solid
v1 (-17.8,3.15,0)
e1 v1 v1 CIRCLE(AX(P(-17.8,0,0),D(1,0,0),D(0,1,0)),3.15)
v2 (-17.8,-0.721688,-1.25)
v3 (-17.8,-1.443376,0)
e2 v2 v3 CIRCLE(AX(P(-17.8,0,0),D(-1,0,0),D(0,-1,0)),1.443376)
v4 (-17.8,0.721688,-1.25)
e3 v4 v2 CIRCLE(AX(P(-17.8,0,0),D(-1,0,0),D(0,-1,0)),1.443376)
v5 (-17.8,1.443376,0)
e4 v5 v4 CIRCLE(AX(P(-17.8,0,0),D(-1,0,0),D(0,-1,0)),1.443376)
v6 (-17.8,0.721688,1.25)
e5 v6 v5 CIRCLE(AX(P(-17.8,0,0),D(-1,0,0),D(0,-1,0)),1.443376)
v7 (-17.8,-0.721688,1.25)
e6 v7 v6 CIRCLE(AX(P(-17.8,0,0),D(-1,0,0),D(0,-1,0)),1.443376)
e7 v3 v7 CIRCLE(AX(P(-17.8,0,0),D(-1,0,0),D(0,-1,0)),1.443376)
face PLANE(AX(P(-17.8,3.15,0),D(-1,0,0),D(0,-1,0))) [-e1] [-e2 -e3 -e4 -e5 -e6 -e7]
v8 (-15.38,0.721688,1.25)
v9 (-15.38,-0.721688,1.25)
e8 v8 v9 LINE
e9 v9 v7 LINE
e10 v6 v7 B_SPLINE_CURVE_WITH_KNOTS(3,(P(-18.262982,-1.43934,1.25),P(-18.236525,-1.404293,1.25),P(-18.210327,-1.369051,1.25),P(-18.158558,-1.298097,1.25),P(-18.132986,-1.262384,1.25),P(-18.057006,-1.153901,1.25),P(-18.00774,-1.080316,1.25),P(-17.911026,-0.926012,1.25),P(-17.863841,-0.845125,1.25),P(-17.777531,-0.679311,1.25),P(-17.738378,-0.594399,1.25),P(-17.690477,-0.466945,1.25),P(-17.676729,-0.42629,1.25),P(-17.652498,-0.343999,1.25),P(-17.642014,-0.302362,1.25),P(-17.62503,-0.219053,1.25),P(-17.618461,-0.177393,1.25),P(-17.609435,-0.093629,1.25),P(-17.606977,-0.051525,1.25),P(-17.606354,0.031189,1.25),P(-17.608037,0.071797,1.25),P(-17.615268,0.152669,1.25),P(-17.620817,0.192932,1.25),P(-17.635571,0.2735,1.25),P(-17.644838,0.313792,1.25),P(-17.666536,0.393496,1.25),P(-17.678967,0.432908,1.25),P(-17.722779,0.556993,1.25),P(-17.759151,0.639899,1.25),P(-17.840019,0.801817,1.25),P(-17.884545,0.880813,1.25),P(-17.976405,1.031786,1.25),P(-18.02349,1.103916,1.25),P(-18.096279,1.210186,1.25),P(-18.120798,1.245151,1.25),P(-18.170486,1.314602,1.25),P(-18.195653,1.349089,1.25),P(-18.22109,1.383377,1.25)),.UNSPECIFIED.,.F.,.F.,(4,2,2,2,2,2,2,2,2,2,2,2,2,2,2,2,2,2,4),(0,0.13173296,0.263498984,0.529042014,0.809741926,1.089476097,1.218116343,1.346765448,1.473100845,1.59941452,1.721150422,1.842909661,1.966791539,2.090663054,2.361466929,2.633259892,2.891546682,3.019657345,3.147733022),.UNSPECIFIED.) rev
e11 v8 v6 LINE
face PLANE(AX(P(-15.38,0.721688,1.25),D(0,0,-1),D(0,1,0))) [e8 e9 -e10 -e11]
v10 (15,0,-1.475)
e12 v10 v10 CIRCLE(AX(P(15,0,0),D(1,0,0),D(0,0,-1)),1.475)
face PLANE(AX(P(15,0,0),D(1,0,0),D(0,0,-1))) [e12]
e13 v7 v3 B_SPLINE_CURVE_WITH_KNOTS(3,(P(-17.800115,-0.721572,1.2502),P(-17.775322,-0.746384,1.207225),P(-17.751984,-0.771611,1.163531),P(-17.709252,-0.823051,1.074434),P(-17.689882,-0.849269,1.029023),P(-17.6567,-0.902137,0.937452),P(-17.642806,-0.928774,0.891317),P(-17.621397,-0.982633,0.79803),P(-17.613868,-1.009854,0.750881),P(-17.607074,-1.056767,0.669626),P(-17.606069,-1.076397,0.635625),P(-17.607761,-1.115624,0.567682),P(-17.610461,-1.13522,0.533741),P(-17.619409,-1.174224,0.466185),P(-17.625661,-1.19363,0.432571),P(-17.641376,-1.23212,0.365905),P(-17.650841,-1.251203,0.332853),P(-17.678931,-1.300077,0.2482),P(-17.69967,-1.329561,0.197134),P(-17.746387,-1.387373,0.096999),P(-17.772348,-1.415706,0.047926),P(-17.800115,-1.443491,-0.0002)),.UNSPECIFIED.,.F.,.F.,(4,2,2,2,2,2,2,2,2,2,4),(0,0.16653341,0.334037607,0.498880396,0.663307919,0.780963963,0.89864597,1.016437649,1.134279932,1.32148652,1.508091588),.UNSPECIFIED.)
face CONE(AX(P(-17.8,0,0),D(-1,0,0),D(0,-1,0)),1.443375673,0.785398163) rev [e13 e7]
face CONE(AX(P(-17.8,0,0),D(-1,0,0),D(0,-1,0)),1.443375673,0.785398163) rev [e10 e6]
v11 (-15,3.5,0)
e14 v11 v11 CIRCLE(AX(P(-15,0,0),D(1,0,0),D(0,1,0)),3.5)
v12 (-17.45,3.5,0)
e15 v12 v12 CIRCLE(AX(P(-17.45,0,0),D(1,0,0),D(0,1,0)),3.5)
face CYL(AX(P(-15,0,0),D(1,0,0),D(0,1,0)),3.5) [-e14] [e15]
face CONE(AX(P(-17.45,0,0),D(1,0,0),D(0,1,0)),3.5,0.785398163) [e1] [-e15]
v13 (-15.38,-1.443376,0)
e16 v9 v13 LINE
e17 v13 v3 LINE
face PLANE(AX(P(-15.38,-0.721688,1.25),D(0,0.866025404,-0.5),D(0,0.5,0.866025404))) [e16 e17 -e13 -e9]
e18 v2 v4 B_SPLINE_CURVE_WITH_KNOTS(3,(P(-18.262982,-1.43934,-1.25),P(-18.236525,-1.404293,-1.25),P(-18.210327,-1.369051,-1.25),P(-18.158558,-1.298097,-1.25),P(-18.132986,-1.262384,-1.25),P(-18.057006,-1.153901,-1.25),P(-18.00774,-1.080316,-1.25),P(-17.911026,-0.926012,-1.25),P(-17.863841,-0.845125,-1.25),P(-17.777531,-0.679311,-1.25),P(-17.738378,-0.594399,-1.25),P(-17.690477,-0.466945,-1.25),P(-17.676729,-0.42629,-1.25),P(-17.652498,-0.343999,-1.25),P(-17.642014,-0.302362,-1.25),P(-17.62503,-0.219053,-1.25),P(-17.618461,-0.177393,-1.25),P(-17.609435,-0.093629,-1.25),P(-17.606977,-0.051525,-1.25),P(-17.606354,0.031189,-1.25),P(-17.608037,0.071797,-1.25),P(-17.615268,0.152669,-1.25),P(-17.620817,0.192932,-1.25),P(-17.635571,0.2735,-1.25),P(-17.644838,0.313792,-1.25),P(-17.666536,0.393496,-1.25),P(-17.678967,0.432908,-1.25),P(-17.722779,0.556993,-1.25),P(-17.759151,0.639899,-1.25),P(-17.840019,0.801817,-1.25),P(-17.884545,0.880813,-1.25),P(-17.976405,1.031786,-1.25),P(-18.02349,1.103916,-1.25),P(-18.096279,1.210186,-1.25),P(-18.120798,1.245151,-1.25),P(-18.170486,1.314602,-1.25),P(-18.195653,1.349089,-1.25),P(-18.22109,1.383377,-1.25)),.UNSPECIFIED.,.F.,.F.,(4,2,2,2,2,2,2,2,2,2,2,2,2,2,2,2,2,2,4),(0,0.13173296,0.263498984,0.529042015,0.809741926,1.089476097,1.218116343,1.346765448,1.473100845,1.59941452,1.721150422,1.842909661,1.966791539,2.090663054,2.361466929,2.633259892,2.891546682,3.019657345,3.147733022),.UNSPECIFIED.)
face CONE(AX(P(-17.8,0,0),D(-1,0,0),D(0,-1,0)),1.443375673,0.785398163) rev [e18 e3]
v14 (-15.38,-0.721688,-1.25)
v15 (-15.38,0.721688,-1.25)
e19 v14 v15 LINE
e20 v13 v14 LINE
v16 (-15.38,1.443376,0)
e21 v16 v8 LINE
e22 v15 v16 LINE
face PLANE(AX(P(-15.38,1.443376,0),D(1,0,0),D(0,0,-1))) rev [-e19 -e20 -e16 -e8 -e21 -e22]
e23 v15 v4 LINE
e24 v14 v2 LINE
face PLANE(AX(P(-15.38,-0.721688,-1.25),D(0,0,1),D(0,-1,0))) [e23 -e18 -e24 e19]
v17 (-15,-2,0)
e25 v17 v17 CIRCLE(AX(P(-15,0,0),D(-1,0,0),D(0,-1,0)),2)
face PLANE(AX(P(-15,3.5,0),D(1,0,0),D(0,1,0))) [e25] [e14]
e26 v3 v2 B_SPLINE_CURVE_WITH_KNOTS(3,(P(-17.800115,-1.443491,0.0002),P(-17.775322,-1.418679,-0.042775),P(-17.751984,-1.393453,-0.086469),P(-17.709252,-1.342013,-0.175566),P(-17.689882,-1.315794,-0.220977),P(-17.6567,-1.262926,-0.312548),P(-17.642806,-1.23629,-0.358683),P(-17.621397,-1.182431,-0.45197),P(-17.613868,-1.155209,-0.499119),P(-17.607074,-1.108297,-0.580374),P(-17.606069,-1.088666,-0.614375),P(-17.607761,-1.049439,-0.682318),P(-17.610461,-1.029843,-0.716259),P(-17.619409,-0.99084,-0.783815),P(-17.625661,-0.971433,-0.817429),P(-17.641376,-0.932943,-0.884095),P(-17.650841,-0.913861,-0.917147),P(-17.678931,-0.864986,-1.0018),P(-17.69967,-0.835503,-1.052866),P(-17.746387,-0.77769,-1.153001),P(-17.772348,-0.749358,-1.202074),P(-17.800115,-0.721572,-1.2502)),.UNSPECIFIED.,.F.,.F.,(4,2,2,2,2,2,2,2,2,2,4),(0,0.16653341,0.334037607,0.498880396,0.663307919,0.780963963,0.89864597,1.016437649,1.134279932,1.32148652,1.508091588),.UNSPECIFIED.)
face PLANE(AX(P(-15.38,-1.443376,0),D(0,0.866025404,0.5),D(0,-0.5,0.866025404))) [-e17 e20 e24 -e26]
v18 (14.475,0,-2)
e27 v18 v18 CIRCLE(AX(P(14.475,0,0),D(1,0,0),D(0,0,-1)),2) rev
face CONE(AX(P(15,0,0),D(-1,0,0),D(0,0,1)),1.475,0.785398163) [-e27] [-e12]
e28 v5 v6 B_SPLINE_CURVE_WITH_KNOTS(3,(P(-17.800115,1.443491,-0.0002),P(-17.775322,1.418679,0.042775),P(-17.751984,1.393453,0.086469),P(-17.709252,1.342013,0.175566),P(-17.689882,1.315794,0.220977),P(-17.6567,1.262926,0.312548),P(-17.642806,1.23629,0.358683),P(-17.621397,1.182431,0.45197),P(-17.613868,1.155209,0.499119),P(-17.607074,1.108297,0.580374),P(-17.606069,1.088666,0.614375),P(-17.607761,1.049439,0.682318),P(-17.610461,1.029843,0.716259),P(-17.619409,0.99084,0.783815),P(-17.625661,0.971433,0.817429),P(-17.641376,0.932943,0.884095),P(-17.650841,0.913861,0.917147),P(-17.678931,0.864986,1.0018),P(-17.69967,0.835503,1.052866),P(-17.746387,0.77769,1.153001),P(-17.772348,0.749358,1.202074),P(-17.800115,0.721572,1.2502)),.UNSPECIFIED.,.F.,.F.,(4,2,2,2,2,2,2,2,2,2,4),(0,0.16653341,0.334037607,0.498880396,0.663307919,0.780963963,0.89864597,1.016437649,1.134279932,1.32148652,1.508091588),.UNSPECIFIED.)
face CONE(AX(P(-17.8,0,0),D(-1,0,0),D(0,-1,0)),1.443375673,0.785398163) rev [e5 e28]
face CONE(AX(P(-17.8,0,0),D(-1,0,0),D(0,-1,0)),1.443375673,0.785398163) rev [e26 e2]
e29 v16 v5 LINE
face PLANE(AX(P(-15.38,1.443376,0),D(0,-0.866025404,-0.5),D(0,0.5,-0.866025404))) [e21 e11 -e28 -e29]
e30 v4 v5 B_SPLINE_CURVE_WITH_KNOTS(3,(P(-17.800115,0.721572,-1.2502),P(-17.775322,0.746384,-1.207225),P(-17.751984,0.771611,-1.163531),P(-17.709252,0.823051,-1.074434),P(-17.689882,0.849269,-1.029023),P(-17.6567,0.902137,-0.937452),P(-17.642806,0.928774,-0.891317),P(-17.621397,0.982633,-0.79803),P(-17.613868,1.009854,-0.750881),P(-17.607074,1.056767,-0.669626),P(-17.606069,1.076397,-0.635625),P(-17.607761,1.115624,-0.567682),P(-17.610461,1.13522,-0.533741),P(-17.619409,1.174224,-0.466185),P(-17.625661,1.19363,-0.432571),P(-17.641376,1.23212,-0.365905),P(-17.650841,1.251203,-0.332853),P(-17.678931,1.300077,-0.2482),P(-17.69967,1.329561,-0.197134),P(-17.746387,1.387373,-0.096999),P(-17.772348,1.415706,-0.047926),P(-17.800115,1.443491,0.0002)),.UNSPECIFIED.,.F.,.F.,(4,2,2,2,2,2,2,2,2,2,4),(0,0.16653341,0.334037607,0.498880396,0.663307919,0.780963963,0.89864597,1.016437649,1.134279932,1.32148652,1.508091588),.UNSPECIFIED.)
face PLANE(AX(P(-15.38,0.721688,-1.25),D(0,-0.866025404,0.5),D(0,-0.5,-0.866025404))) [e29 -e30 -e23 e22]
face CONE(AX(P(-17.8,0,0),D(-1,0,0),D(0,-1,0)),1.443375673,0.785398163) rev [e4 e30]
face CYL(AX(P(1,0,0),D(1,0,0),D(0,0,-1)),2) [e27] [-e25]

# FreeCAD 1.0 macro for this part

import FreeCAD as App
import Part
import Sketcher

V = App.Vector
Q = App.Units.Quantity


def edges_at(feature, points):
    """Names of the edges that pass closest to the given points."""
    edges = feature.Shape.Edges
    near = lambda p: min(range(len(edges)), key=lambda i: edges[i].distToShape(Part.Vertex(*p))[0])
    return sorted({f"Edge{near(p) + 1}" for p in points})

doc = App.newDocument("Part")
body = doc.addObject("PartDesign::Body", "Body")

sketch1 = body.newObject("Sketcher::SketchObject", "Sketch")
sketch1.AttachmentSupport = (doc.getObject("YZ_Plane"), [""])
sketch1.MapMode = "FlatFace"
sketch1.AttachmentOffset = App.Placement(V(0, 0, 15), App.Rotation())
sketch1.addGeometry(Part.Circle(V(0, 0, 0), V(0, 0, 1), 2), False)
sketch1.addConstraint(Sketcher.Constraint("Coincident", 0, 3, -1, 1))
sketch1.addConstraint(Sketcher.Constraint("Diameter", 0, 4.0))
pad1 = body.newObject("PartDesign::Pad", "Pad")
pad1.Profile = sketch1
pad1.Length = 14
pad1.Reversed = True
doc.recompute()

chamfer = body.newObject("PartDesign::Chamfer", "Chamfer")
chamfer.Base = (pad1, edges_at(pad1, [(15, 0, 2)]))
chamfer.Size = 0.525

sketch2 = body.newObject("Sketcher::SketchObject", "Sketch001")
sketch2.AttachmentSupport = (doc.getObject("XY_Plane"), [""])
sketch2.MapMode = "FlatFace"
sketch2.addGeometry(Part.LineSegment(V(2.2, 0, 0), V(1, 2, 0)), False)
sketch2.addGeometry(Part.LineSegment(V(1, 2, 0), V(-15, 2, 0)), False)
sketch2.addGeometry(Part.LineSegment(V(-15, 2, 0), V(-15, 0, 0)), False)
sketch2.addGeometry(Part.LineSegment(V(-15, 0, 0), V(2.2, 0, 0)), False)
sketch2.addConstraint(Sketcher.Constraint("Coincident", 0, 2, 1, 1))
sketch2.addConstraint(Sketcher.Constraint("Coincident", 1, 2, 2, 1))
sketch2.addConstraint(Sketcher.Constraint("Coincident", 2, 2, 3, 1))
sketch2.addConstraint(Sketcher.Constraint("Coincident", 3, 2, 0, 1))
sketch2.addConstraint(Sketcher.Constraint("Horizontal", 1))
sketch2.addConstraint(Sketcher.Constraint("Vertical", 2))
sketch2.addConstraint(Sketcher.Constraint("Horizontal", 3))
sketch2.addConstraint(Sketcher.Constraint("PointOnObject", 2, 2, -1))
sketch2.addConstraint(Sketcher.Constraint("DistanceX", 1, 2, 1, 1, 16.0))
sketch2.addConstraint(Sketcher.Constraint("DistanceY", 2, 2, 2, 1, 2.0))
sketch2.addConstraint(Sketcher.Constraint("Angle", 0, Q("120 deg")))
sketch2.addConstraint(Sketcher.Constraint("DistanceX", -1, 1, 0, 2, 1.0))
revolution = body.newObject("PartDesign::Revolution", "Revolution")
revolution.Profile = sketch2
revolution.ReferenceAxis = (sketch2, ["H_Axis"])
revolution.Angle = 360

sketch3 = body.newObject("Sketcher::SketchObject", "Sketch002")
sketch3.AttachmentSupport = (doc.getObject("XY_Plane"), [""])
sketch3.MapMode = "FlatFace"
sketch3.addGeometry(Part.LineSegment(V(-17.45, 3.5, 0), V(-17.8, 3.15, 0)), False)
sketch3.addGeometry(Part.LineSegment(V(-17.8, 3.15, 0), V(-17.8, 0, 0)), False)
sketch3.addGeometry(Part.LineSegment(V(-17.8, 0, 0), V(-15, 0, 0)), False)
sketch3.addGeometry(Part.LineSegment(V(-15, 0, 0), V(-15, 3.5, 0)), False)
sketch3.addGeometry(Part.LineSegment(V(-15, 3.5, 0), V(-17.45, 3.5, 0)), False)
sketch3.addConstraint(Sketcher.Constraint("Coincident", 0, 2, 1, 1))
sketch3.addConstraint(Sketcher.Constraint("Coincident", 1, 2, 2, 1))
sketch3.addConstraint(Sketcher.Constraint("Coincident", 2, 2, 3, 1))
sketch3.addConstraint(Sketcher.Constraint("Coincident", 3, 2, 4, 1))
sketch3.addConstraint(Sketcher.Constraint("Coincident", 4, 2, 0, 1))
sketch3.addConstraint(Sketcher.Constraint("Vertical", 1))
sketch3.addConstraint(Sketcher.Constraint("Horizontal", 2))
sketch3.addConstraint(Sketcher.Constraint("Vertical", 3))
sketch3.addConstraint(Sketcher.Constraint("Horizontal", 4))
sketch3.addConstraint(Sketcher.Constraint("PointOnObject", 1, 2, -1))
sketch3.addConstraint(Sketcher.Constraint("Angle", 0, Q("-135 deg")))
sketch3.addConstraint(Sketcher.Constraint("DistanceX", 2, 1, 2, 2, 2.8))
sketch3.addConstraint(Sketcher.Constraint("DistanceY", 3, 1, 3, 2, 3.5))
sketch3.addConstraint(Sketcher.Constraint("DistanceX", 2, 2, -1, 1, 15.0))
sketch3.addConstraint(Sketcher.Constraint("DistanceX", 4, 2, 4, 1, 2.45))
revolution2 = body.newObject("PartDesign::Revolution", "Revolution001")
revolution2.Profile = sketch3
revolution2.ReferenceAxis = (sketch3, ["H_Axis"])
revolution2.Angle = 360

sketch4 = body.newObject("Sketcher::SketchObject", "Sketch003")
sketch4.AttachmentSupport = (doc.getObject("YZ_Plane"), [""])
sketch4.MapMode = "FlatFace"
sketch4.AttachmentOffset = App.Placement(V(0, 0, -17.8), App.Rotation())
sketch4.addGeometry(Part.LineSegment(V(1.4, 0, 0), V(0.7, 1.2, 0)), False)
sketch4.addGeometry(Part.LineSegment(V(0.7, 1.2, 0), V(-0.7, 1.2, 0)), False)
sketch4.addGeometry(Part.LineSegment(V(-0.7, 1.2, 0), V(-1.4, 0, 0)), False)
sketch4.addGeometry(Part.LineSegment(V(-1.4, 0, 0), V(-0.7, -1.2, 0)), False)
sketch4.addGeometry(Part.LineSegment(V(-0.7, -1.2, 0), V(0.7, -1.2, 0)), False)
sketch4.addGeometry(Part.LineSegment(V(0.7, -1.2, 0), V(1.4, 0, 0)), False)
sketch4.addConstraint(Sketcher.Constraint("Coincident", 0, 2, 1, 1))
sketch4.addConstraint(Sketcher.Constraint("Coincident", 1, 2, 2, 1))
sketch4.addConstraint(Sketcher.Constraint("Coincident", 2, 2, 3, 1))
sketch4.addConstraint(Sketcher.Constraint("Coincident", 3, 2, 4, 1))
sketch4.addConstraint(Sketcher.Constraint("Coincident", 4, 2, 5, 1))
sketch4.addConstraint(Sketcher.Constraint("Coincident", 5, 2, 0, 1))
sketch4.addConstraint(Sketcher.Constraint("Horizontal", 1))
sketch4.addConstraint(Sketcher.Constraint("Horizontal", 4))
sketch4.addConstraint(Sketcher.Constraint("Symmetric", 0, 2, 3, 2, -1, 1))
sketch4.addConstraint(Sketcher.Constraint("Symmetric", 2, 2, 5, 2, -1, 1))
sketch4.addConstraint(Sketcher.Constraint("PointOnObject", 2, 2, -1))
sketch4.addConstraint(Sketcher.Constraint("Parallel", 2, 5))
sketch4.addConstraint(Sketcher.Constraint("Vertical", 1, 2, 3, 2))
sketch4.addConstraint(Sketcher.Constraint("Angle", 0, Q("120 deg")))
sketch4.addConstraint(Sketcher.Constraint("DistanceY", 3, 2, 1, 2, 2.5))
sketch4.addConstraint(Sketcher.Constraint("DistanceX", 1, 2, 1, 1, 1.443376))
pocket1 = body.newObject("PartDesign::Pocket", "Pocket")
pocket1.Profile = sketch4
pocket1.Length = 2.42
pocket1.Reversed = True

sketch5 = body.newObject("Sketcher::SketchObject", "Sketch004")
sketch5.AttachmentSupport = (doc.getObject("XZ_Plane"), [""])
sketch5.MapMode = "FlatFace"
sketch5.addGeometry(Part.LineSegment(V(-17.8, 0, 0), V(-17.8, 1.4, 0)), False)
sketch5.addGeometry(Part.LineSegment(V(-17.8, 1.4, 0), V(-16.4, 0, 0)), False)
sketch5.addGeometry(Part.LineSegment(V(-16.4, 0, 0), V(-17.8, 0, 0)), False)
sketch5.addConstraint(Sketcher.Constraint("Coincident", 0, 2, 1, 1))
sketch5.addConstraint(Sketcher.Constraint("Coincident", 1, 2, 2, 1))
sketch5.addConstraint(Sketcher.Constraint("Coincident", 2, 2, 0, 1))
sketch5.addConstraint(Sketcher.Constraint("Vertical", 0))
sketch5.addConstraint(Sketcher.Constraint("Horizontal", 2))
sketch5.addConstraint(Sketcher.Constraint("PointOnObject", 1, 2, -1))
sketch5.addConstraint(Sketcher.Constraint("Equal", 2, 0))
sketch5.addConstraint(Sketcher.Constraint("DistanceX", 0, 2, -1, 1, 17.8))
sketch5.addConstraint(Sketcher.Constraint("Distance", 1, 2.041241))
groove = body.newObject("PartDesign::Groove", "Groove")
groove.Profile = sketch5
groove.ReferenceAxis = (sketch5, ["H_Axis"])
groove.Angle = 360

doc.recompute()
